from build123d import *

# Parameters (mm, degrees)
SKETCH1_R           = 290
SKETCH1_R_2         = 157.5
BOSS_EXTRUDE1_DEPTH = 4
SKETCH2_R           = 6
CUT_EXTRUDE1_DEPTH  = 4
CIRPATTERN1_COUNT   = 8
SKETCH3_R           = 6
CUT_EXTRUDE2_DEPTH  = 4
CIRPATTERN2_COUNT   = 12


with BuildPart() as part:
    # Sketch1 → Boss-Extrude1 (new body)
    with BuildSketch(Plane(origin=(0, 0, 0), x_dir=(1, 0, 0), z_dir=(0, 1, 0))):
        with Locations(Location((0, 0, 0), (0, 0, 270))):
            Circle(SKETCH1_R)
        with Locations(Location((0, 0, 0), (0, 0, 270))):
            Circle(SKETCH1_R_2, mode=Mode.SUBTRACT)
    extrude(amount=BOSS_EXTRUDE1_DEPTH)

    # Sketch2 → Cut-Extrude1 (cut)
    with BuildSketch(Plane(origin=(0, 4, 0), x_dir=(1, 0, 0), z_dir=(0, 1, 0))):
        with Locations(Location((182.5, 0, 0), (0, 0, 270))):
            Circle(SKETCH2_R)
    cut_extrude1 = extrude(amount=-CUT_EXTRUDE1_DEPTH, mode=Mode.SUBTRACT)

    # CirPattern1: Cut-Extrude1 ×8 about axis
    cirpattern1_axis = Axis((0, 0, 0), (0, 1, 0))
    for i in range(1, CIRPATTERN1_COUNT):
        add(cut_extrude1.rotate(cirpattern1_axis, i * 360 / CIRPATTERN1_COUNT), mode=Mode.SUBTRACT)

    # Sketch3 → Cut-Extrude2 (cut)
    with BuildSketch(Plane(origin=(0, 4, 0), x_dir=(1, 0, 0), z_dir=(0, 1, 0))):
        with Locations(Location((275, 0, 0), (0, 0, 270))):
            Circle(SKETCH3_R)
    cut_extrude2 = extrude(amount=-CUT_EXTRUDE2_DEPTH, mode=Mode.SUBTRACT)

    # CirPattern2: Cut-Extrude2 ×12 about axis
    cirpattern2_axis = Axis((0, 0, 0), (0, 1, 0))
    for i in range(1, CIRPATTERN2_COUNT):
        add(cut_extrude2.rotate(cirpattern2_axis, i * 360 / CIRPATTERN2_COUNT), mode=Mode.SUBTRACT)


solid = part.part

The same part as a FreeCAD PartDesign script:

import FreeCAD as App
import Part
import Sketcher
from FreeCAD import Vector

doc = App.newDocument("Part")
params = doc.addObject("Spreadsheet::Sheet", "Params")
for row, (alias, value) in enumerate([
    ("sketch1_diameter", "580 mm"),
    ("sketch1_diameter2", "315 mm"),
    ("pad1_length", "4 mm"),
    ("sketch2_diameter", "12 mm"),
    ("pocket1_length", "4 mm"),
    ("sketch3_diameter", "12 mm"),
    ("pocket2_length", "4 mm"),
], start=1):
    params.set(f"A{row}", alias)
    params.set(f"B{row}", "=" + value)
    params.setAlias(f"B{row}", alias)

body = doc.addObject("PartDesign::Body", "Body")

# Sketch on XZ plane
sketch1 = body.newObject("Sketcher::SketchObject", "Sketch")
sketch1.AttachmentSupport = (doc.getObject("XZ_Plane"), [""])
sketch1.MapMode = "FlatFace"
sketch1.addGeometry(Part.Circle(Vector(0, 0, 0), Vector(0, 0, 1), 290), False)
sketch1.addGeometry(Part.Circle(Vector(0, 0, 0), Vector(0, 0, 1), 158), False)
sketch1.addConstraint(Sketcher.Constraint("Coincident", 0, 3, -1, 1))
sketch1.addConstraint(Sketcher.Constraint("Coincident", 1, 3, -1, 1))
sketch1.addConstraint(Sketcher.Constraint("Diameter", 0, 580.0))
sketch1.addConstraint(Sketcher.Constraint("Diameter", 1, 315.0))
sketch1.setExpression("Constraints[2]", "Params.sketch1_diameter")
sketch1.setExpression("Constraints[3]", "Params.sketch1_diameter2")
pad1 = body.newObject("PartDesign::Pad", "Pad")
pad1.Profile = sketch1
pad1.setExpression("Length", "Params.pad1_length")
pad1.Reversed = True

# Sketch on XZ plane
sketch2 = body.newObject("Sketcher::SketchObject", "Sketch001")
sketch2.AttachmentSupport = (doc.getObject("XZ_Plane"), [""])
sketch2.MapMode = "FlatFace"
sketch2.AttachmentOffset = App.Placement(Vector(0, 0, -4), App.Rotation())
sketch2.addGeometry(Part.Circle(Vector(182, 0, 0), Vector(0, 0, 1), 6), False)
sketch2.addConstraint(Sketcher.Constraint("PointOnObject", 0, 3, -1))
sketch2.addConstraint(Sketcher.Constraint("Diameter", 0, 12.0))
sketch2.addConstraint(Sketcher.Constraint("DistanceX", -1, 1, 0, 3, 182.5))
sketch2.setExpression("Constraints[1]", "Params.sketch2_diameter")
pocket1 = body.newObject("PartDesign::Pocket", "Pocket")
pocket1.Profile = sketch2
pocket1.setExpression("Length", "Params.pocket1_length")
pocket1.Reversed = True
doc.recompute()

polarpattern = body.newObject("PartDesign::PolarPattern", "PolarPattern")
polarpattern.Originals = [pocket1]
polarpattern.Axis = (doc.getObject("Y_Axis"), [""])
polarpattern.Angle = 360
polarpattern.Occurrences = 8
body.Tip = polarpattern

# Sketch on XZ plane
sketch3 = body.newObject("Sketcher::SketchObject", "Sketch002")
sketch3.AttachmentSupport = (doc.getObject("XZ_Plane"), [""])
sketch3.MapMode = "FlatFace"
sketch3.AttachmentOffset = App.Placement(Vector(0, 0, -4), App.Rotation())
sketch3.addGeometry(Part.Circle(Vector(275, 0, 0), Vector(0, 0, 1), 6), False)
sketch3.addConstraint(Sketcher.Constraint("PointOnObject", 0, 3, -1))
sketch3.addConstraint(Sketcher.Constraint("Diameter", 0, 12.0))
sketch3.addConstraint(Sketcher.Constraint("DistanceX", -1, 1, 0, 3, 275.0))
sketch3.setExpression("Constraints[1]", "Params.sketch3_diameter")
pocket2 = body.newObject("PartDesign::Pocket", "Pocket001")
pocket2.Profile = sketch3
pocket2.setExpression("Length", "Params.pocket2_length")
pocket2.Reversed = True
doc.recompute()

polarpattern2 = body.newObject("PartDesign::PolarPattern", "PolarPattern001")
polarpattern2.Originals = [pocket2]
polarpattern2.Axis = (doc.getObject("Y_Axis"), [""])
polarpattern2.Angle = 360
polarpattern2.Occurrences = 12
body.Tip = polarpattern2

doc.recompute()
